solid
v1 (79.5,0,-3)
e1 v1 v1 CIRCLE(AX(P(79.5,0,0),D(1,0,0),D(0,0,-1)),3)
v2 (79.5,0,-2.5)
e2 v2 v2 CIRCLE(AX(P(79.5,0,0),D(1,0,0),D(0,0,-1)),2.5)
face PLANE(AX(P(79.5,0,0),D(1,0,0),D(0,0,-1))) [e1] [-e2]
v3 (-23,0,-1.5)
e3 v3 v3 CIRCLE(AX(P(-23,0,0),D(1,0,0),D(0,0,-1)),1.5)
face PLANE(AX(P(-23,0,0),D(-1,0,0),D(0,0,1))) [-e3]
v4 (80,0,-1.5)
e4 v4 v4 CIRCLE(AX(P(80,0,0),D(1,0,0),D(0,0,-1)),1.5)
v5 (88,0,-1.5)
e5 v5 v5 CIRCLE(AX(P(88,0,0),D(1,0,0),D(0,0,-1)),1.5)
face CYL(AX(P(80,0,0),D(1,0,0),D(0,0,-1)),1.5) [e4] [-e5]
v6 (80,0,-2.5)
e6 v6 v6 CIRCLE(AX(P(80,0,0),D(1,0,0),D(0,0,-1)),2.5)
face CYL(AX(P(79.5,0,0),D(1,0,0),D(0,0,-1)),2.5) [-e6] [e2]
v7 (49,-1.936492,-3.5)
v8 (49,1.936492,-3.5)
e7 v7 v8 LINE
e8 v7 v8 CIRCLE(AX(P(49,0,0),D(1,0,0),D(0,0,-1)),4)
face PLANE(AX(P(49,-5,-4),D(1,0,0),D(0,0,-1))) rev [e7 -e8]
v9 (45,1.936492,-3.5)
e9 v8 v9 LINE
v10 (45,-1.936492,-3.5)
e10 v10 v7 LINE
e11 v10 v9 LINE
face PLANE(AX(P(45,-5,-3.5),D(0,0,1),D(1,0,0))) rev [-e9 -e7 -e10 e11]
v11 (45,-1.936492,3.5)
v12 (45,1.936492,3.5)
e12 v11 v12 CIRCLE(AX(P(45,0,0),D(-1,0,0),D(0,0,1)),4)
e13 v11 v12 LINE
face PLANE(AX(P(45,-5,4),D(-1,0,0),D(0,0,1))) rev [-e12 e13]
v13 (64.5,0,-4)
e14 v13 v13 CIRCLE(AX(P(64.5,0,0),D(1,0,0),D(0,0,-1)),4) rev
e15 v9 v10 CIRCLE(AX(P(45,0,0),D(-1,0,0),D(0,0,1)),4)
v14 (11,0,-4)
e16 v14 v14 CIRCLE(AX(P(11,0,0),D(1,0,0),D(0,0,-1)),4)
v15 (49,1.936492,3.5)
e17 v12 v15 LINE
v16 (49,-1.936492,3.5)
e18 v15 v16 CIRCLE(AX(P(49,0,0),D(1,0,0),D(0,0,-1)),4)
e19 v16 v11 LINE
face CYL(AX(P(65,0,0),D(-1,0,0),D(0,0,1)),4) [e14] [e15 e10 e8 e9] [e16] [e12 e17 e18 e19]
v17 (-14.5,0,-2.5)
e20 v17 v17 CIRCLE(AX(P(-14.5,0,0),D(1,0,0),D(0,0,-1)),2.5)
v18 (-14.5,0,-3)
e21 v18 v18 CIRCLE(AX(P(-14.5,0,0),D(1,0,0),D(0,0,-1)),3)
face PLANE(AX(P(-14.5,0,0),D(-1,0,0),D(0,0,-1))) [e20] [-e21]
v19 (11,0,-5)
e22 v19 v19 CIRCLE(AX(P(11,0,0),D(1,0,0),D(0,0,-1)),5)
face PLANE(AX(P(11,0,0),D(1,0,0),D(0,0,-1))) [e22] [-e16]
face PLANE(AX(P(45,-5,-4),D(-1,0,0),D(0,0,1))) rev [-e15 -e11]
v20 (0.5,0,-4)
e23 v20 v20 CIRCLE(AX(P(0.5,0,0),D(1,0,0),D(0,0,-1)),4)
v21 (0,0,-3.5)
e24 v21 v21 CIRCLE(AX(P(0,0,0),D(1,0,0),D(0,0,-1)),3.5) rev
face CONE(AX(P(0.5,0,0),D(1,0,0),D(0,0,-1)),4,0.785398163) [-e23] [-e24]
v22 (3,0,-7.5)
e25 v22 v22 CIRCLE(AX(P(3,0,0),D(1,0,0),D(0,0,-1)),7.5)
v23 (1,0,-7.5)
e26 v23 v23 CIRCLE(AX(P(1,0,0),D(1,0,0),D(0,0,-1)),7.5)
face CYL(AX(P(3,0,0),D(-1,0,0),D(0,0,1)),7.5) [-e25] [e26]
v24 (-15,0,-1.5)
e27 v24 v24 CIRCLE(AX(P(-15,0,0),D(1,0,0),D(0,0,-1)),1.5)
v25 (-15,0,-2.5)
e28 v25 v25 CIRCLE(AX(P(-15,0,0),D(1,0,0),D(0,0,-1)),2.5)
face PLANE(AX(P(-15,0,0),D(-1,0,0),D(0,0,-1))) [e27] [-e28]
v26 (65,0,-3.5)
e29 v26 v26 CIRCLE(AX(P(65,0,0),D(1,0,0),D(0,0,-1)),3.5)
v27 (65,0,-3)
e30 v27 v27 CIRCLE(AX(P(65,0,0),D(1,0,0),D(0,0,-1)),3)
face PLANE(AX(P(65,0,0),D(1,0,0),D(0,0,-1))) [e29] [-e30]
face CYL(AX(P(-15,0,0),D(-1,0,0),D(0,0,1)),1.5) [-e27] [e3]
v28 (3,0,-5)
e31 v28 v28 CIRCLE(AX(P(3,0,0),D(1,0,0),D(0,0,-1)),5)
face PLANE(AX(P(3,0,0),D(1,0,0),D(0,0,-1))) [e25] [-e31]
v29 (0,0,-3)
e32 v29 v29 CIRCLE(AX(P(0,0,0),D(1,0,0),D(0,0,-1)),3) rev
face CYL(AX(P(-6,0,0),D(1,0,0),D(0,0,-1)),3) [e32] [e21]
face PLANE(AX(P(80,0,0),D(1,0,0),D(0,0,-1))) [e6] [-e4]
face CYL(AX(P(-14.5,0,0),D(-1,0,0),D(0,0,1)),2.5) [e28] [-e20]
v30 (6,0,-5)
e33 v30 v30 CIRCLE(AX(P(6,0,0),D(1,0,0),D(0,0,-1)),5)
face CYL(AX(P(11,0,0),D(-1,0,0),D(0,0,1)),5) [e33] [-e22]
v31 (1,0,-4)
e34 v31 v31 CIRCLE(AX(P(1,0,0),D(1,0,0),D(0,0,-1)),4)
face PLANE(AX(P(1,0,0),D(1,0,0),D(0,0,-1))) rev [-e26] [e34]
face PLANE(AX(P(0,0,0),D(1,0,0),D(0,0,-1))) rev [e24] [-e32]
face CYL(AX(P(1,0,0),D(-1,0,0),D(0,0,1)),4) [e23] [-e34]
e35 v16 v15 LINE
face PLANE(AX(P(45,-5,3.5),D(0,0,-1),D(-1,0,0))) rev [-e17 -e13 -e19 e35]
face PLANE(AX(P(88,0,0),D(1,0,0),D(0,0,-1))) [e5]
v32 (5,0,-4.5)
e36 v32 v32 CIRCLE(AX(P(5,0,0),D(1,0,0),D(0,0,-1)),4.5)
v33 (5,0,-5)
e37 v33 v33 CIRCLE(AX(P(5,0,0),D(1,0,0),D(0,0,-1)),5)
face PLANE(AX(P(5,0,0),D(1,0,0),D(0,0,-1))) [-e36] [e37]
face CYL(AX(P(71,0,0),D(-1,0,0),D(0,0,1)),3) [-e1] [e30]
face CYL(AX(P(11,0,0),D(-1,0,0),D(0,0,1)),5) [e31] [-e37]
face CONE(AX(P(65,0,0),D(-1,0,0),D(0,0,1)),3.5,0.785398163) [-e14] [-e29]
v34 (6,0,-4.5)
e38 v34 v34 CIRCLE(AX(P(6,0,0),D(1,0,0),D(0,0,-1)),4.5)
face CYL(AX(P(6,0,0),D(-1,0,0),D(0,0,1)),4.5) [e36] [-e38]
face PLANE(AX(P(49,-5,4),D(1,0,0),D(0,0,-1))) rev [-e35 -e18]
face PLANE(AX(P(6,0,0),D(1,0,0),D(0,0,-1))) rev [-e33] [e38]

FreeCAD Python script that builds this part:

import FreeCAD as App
import Part
import Sketcher

V = App.Vector


def edges_at(feature, points):
    """Names of the edges that pass closest to the given points."""
    edges = feature.Shape.Edges
    near = lambda p: min(range(len(edges)), key=lambda i: edges[i].distToShape(Part.Vertex(*p))[0])
    return sorted({f"Edge{near(p) + 1}" for p in points})


def add_polygon(sketch, points):
    """Adds a closed chain of lines whose ends are joined by coincident constraints."""
    first, n = sketch.GeometryCount, len(points)
    for a, b in zip(points, points[1:] + points[:1]):
        sketch.addGeometry(Part.LineSegment(App.Vector(*a, 0), App.Vector(*b, 0)), False)
    for i in range(n):
        sketch.addConstraint(Sketcher.Constraint("Coincident", first + i, 2, first + (i + 1) % n, 1))

doc = App.newDocument("Part")
body = doc.addObject("PartDesign::Body", "Body")

# Sketch on YZ plane
sketch1 = doc.addObject("Sketcher::SketchObject", "Sketch")
body.addObject(sketch1)
sketch1.AttachmentSupport = (doc.YZ_Plane, [""])
sketch1.MapMode = "FlatFace"
sketch1.addGeometry(Part.Circle(V(0, 0, 0), V(0, 0, 1), 4), False)
sketch1.addConstraint(Sketcher.Constraint("Coincident", 0, 3, -1, 1))
sketch1.addConstraint(Sketcher.Constraint("Diameter", 0, 8.0))
pad1 = doc.addObject("PartDesign::Pad", "Pad")
body.addObject(pad1)
pad1.Profile = sketch1
pad1.Length = 1

# Sketch on YZ plane
sketch2 = doc.addObject("Sketcher::SketchObject", "Sketch001")
body.addObject(sketch2)
sketch2.AttachmentSupport = (doc.YZ_Plane, [""])
sketch2.MapMode = "FlatFace"
sketch2.addGeometry(Part.Circle(V(0, 0, 0), V(0, 0, 1), 3), False)
sketch2.addConstraint(Sketcher.Constraint("Coincident", 0, 3, -1, 1))
sketch2.addConstraint(Sketcher.Constraint("Diameter", 0, 6.0))
pad2 = doc.addObject("PartDesign::Pad", "Pad001")
body.addObject(pad2)
pad2.Profile = sketch2
pad2.Length = 6
pad2.Reversed = True

# Sketch on YZ plane
sketch3 = doc.addObject("Sketcher::SketchObject", "Sketch002")
body.addObject(sketch3)
sketch3.AttachmentSupport = (doc.YZ_Plane, [""])
sketch3.MapMode = "FlatFace"
sketch3.AttachmentOffset = App.Placement(V(0, 0, -6), App.Rotation())
sketch3.addGeometry(Part.Circle(V(0, 0, 0), V(0, 0, 1), 3), False)
sketch3.addConstraint(Sketcher.Constraint("Coincident", 0, 3, -1, 1))
sketch3.addConstraint(Sketcher.Constraint("Diameter", 0, 6.0))
pad3 = doc.addObject("PartDesign::Pad", "Pad002")
body.addObject(pad3)
pad3.Profile = sketch3
pad3.Length = 17
pad3.Reversed = True

# Sketch on YZ plane
sketch4 = doc.addObject("Sketcher::SketchObject", "Sketch003")
body.addObject(sketch4)
sketch4.AttachmentSupport = (doc.YZ_Plane, [""])
sketch4.MapMode = "FlatFace"
sketch4.AttachmentOffset = App.Placement(V(0, 0, 1), App.Rotation())
sketch4.addGeometry(Part.Circle(V(0, 0, 0), V(0, 0, 1), 7.5), False)
sketch4.addConstraint(Sketcher.Constraint("Coincident", 0, 3, -1, 1))
sketch4.addConstraint(Sketcher.Constraint("Diameter", 0, 15.0))
pad4 = doc.addObject("PartDesign::Pad", "Pad003")
body.addObject(pad4)
pad4.Profile = sketch4
pad4.Length = 2

# Sketch on YZ plane
sketch5 = doc.addObject("Sketcher::SketchObject", "Sketch004")
body.addObject(sketch5)
sketch5.AttachmentSupport = (doc.YZ_Plane, [""])
sketch5.MapMode = "FlatFace"
sketch5.AttachmentOffset = App.Placement(V(0, 0, 3), App.Rotation())
sketch5.addGeometry(Part.Circle(V(0, 0, 0), V(0, 0, 1), 5), False)
sketch5.addConstraint(Sketcher.Constraint("Coincident", 0, 3, -1, 1))
sketch5.addConstraint(Sketcher.Constraint("Diameter", 0, 10.0))
pad5 = doc.addObject("PartDesign::Pad", "Pad004")
body.addObject(pad5)
pad5.Profile = sketch5
pad5.Length = 8

# Sketch on YZ plane
sketch6 = doc.addObject("Sketcher::SketchObject", "Sketch005")
body.addObject(sketch6)
sketch6.AttachmentSupport = (doc.YZ_Plane, [""])
sketch6.MapMode = "FlatFace"
sketch6.AttachmentOffset = App.Placement(V(0, 0, 11), App.Rotation())
sketch6.addGeometry(Part.Circle(V(0, 0, 0), V(0, 0, 1), 4), False)
sketch6.addConstraint(Sketcher.Constraint("Coincident", 0, 3, -1, 1))
sketch6.addConstraint(Sketcher.Constraint("Diameter", 0, 8.0))
pad6 = doc.addObject("PartDesign::Pad", "Pad005")
body.addObject(pad6)
pad6.Profile = sketch6
pad6.Length = 54

# Sketch on YZ plane
sketch7 = doc.addObject("Sketcher::SketchObject", "Sketch006")
body.addObject(sketch7)
sketch7.AttachmentSupport = (doc.YZ_Plane, [""])
sketch7.MapMode = "FlatFace"
sketch7.AttachmentOffset = App.Placement(V(0, 0, 71), App.Rotation())
sketch7.addGeometry(Part.Circle(V(0, 0, 0), V(0, 0, 1), 3), False)
sketch7.addConstraint(Sketcher.Constraint("Coincident", 0, 3, -1, 1))
sketch7.addConstraint(Sketcher.Constraint("Diameter", 0, 6.0))
pad7 = doc.addObject("PartDesign::Pad", "Pad006")
body.addObject(pad7)
pad7.Profile = sketch7
pad7.Length = 6
pad7.Reversed = True

# Sketch on YZ plane
sketch8 = doc.addObject("Sketcher::SketchObject", "Sketch007")
body.addObject(sketch8)
sketch8.AttachmentSupport = (doc.YZ_Plane, [""])
sketch8.MapMode = "FlatFace"
sketch8.AttachmentOffset = App.Placement(V(0, 0, 88), App.Rotation())
sketch8.addGeometry(Part.Circle(V(0, 0, 0), V(0, 0, 1), 3), False)
sketch8.addConstraint(Sketcher.Constraint("Coincident", 0, 3, -1, 1))
sketch8.addConstraint(Sketcher.Constraint("Diameter", 0, 6.0))
pad8 = doc.addObject("PartDesign::Pad", "Pad007")
body.addObject(pad8)
pad8.Profile = sketch8
pad8.Length = 17
pad8.Reversed = True
doc.recompute()

chamfer = doc.addObject("PartDesign::Chamfer", "Chamfer")
body.addObject(chamfer)
chamfer.Base = (pad8, edges_at(pad8, [(65, 0, 4)]))
chamfer.Size = 0.5
doc.recompute()

chamfer2 = doc.addObject("PartDesign::Chamfer", "Chamfer001")
body.addObject(chamfer2)
chamfer2.Base = (chamfer, edges_at(chamfer, [(0, 0, 4)]))
chamfer2.Size = 0.5

# Sketch on YZ plane
sketch9 = doc.addObject("Sketcher::SketchObject", "Sketch008")
body.addObject(sketch9)
sketch9.AttachmentSupport = (doc.YZ_Plane, [""])
sketch9.MapMode = "FlatFace"
sketch9.AttachmentOffset = App.Placement(V(0, 0, 5), App.Rotation())
sketch9.addGeometry(Part.Circle(V(0, 0, 0), V(0, 0, 1), 5), False)
sketch9.addGeometry(Part.Circle(V(0, 0, 0), V(0, 0, 1), 4.5), False)
sketch9.addConstraint(Sketcher.Constraint("Coincident", 0, 3, -1, 1))
sketch9.addConstraint(Sketcher.Constraint("Coincident", 1, 3, -1, 1))
sketch9.addConstraint(Sketcher.Constraint("Diameter", 0, 10.0))
sketch9.addConstraint(Sketcher.Constraint("Diameter", 1, 9.0))
pocket1 = doc.addObject("PartDesign::Pocket", "Pocket")
body.addObject(pocket1)
pocket1.Profile = sketch9
pocket1.Length = 1
pocket1.Reversed = True

# Sketch on XZ plane
sketch10 = doc.addObject("Sketcher::SketchObject", "Sketch009")
body.addObject(sketch10)
sketch10.AttachmentSupport = (doc.XZ_Plane, [""])
sketch10.MapMode = "FlatFace"
add_polygon(sketch10, [(45, -4), (45, -3.5), (49, -3.5), (49, -4)])  # lines 0-3
add_polygon(sketch10, [(45, 3.5), (45, 4), (49, 4), (49, 3.5)])  # lines 4-7
sketch10.addConstraint(Sketcher.Constraint("Vertical", 0))
sketch10.addConstraint(Sketcher.Constraint("Horizontal", 1))
sketch10.addConstraint(Sketcher.Constraint("Vertical", 2))
sketch10.addConstraint(Sketcher.Constraint("Horizontal", 3))
sketch10.addConstraint(Sketcher.Constraint("Vertical", 4))
sketch10.addConstraint(Sketcher.Constraint("Horizontal", 5))
sketch10.addConstraint(Sketcher.Constraint("Vertical", 6))
sketch10.addConstraint(Sketcher.Constraint("Horizontal", 7))
sketch10.addConstraint(Sketcher.Constraint("Symmetric", 3, 2, 4, 2, -1))
sketch10.addConstraint(Sketcher.Constraint("Symmetric", 1, 2, 6, 2, -1))
sketch10.addConstraint(Sketcher.Constraint("DistanceX", 1, 1, 1, 2, 4.0))
sketch10.addConstraint(Sketcher.Constraint("DistanceY", 0, 1, 0, 2, 0.5))
sketch10.addConstraint(Sketcher.Constraint("DistanceX", -1, 1, 0, 2, 45.0))
sketch10.addConstraint(Sketcher.Constraint("DistanceY", 2, 2, -1, 1, 4.0))
pocket2 = doc.addObject("PartDesign::Pocket", "Pocket001")
body.addObject(pocket2)
pocket2.Profile = sketch10
pocket2.Length = 10
pocket2.Midplane = True

# Sketch on YZ plane
sketch11 = doc.addObject("Sketcher::SketchObject", "Sketch010")
body.addObject(sketch11)
sketch11.AttachmentSupport = (doc.YZ_Plane, [""])
sketch11.MapMode = "FlatFace"
sketch11.AttachmentOffset = App.Placement(V(0, 0, 88), App.Rotation())
sketch11.addGeometry(Part.Circle(V(0, 0, 0), V(0, 0, 1), 3), False)
sketch11.addGeometry(Part.Circle(V(0, 0, 0), V(0, 0, 1), 1.5), False)
sketch11.addConstraint(Sketcher.Constraint("Coincident", 0, 3, -1, 1))
sketch11.addConstraint(Sketcher.Constraint("Coincident", 1, 3, -1, 1))
sketch11.addConstraint(Sketcher.Constraint("Diameter", 0, 6.0))
sketch11.addConstraint(Sketcher.Constraint("Diameter", 1, 3.0))
pocket3 = doc.addObject("PartDesign::Pocket", "Pocket002")
body.addObject(pocket3)
pocket3.Profile = sketch11
pocket3.Length = 8

# Sketch on YZ plane
sketch12 = doc.addObject("Sketcher::SketchObject", "Sketch011")
body.addObject(sketch12)
sketch12.AttachmentSupport = (doc.YZ_Plane, [""])
sketch12.MapMode = "FlatFace"
sketch12.AttachmentOffset = App.Placement(V(0, 0, 80), App.Rotation())
sketch12.addGeometry(Part.Circle(V(0, 0, 0), V(0, 0, 1), 3), False)
sketch12.addGeometry(Part.Circle(V(0, 0, 0), V(0, 0, 1), 2.5), False)
sketch12.addConstraint(Sketcher.Constraint("Coincident", 0, 3, -1, 1))
sketch12.addConstraint(Sketcher.Constraint("Coincident", 1, 3, -1, 1))
sketch12.addConstraint(Sketcher.Constraint("Diameter", 0, 6.0))
sketch12.addConstraint(Sketcher.Constraint("Diameter", 1, 5.0))
pocket4 = doc.addObject("PartDesign::Pocket", "Pocket003")
body.addObject(pocket4)
pocket4.Profile = sketch12
pocket4.Length = 0.5
doc.recompute()

datumplane = doc.addObject("PartDesign::Plane", "DatumPlane")
body.addObject(datumplane)
datumplane.AttachmentSupport = (doc.YZ_Plane, [""])
datumplane.MapMode = "FlatFace"
datumplane.AttachmentOffset = App.Placement(V(0, 0, 32.5), App.Rotation())
mirrored = doc.addObject("PartDesign::Mirrored", "Mirrored")
body.addObject(mirrored)
mirrored.Originals = [pocket3, pocket4]
mirrored.MirrorPlane = (datumplane, [""])
body.Tip = mirrored

doc.recompute()
